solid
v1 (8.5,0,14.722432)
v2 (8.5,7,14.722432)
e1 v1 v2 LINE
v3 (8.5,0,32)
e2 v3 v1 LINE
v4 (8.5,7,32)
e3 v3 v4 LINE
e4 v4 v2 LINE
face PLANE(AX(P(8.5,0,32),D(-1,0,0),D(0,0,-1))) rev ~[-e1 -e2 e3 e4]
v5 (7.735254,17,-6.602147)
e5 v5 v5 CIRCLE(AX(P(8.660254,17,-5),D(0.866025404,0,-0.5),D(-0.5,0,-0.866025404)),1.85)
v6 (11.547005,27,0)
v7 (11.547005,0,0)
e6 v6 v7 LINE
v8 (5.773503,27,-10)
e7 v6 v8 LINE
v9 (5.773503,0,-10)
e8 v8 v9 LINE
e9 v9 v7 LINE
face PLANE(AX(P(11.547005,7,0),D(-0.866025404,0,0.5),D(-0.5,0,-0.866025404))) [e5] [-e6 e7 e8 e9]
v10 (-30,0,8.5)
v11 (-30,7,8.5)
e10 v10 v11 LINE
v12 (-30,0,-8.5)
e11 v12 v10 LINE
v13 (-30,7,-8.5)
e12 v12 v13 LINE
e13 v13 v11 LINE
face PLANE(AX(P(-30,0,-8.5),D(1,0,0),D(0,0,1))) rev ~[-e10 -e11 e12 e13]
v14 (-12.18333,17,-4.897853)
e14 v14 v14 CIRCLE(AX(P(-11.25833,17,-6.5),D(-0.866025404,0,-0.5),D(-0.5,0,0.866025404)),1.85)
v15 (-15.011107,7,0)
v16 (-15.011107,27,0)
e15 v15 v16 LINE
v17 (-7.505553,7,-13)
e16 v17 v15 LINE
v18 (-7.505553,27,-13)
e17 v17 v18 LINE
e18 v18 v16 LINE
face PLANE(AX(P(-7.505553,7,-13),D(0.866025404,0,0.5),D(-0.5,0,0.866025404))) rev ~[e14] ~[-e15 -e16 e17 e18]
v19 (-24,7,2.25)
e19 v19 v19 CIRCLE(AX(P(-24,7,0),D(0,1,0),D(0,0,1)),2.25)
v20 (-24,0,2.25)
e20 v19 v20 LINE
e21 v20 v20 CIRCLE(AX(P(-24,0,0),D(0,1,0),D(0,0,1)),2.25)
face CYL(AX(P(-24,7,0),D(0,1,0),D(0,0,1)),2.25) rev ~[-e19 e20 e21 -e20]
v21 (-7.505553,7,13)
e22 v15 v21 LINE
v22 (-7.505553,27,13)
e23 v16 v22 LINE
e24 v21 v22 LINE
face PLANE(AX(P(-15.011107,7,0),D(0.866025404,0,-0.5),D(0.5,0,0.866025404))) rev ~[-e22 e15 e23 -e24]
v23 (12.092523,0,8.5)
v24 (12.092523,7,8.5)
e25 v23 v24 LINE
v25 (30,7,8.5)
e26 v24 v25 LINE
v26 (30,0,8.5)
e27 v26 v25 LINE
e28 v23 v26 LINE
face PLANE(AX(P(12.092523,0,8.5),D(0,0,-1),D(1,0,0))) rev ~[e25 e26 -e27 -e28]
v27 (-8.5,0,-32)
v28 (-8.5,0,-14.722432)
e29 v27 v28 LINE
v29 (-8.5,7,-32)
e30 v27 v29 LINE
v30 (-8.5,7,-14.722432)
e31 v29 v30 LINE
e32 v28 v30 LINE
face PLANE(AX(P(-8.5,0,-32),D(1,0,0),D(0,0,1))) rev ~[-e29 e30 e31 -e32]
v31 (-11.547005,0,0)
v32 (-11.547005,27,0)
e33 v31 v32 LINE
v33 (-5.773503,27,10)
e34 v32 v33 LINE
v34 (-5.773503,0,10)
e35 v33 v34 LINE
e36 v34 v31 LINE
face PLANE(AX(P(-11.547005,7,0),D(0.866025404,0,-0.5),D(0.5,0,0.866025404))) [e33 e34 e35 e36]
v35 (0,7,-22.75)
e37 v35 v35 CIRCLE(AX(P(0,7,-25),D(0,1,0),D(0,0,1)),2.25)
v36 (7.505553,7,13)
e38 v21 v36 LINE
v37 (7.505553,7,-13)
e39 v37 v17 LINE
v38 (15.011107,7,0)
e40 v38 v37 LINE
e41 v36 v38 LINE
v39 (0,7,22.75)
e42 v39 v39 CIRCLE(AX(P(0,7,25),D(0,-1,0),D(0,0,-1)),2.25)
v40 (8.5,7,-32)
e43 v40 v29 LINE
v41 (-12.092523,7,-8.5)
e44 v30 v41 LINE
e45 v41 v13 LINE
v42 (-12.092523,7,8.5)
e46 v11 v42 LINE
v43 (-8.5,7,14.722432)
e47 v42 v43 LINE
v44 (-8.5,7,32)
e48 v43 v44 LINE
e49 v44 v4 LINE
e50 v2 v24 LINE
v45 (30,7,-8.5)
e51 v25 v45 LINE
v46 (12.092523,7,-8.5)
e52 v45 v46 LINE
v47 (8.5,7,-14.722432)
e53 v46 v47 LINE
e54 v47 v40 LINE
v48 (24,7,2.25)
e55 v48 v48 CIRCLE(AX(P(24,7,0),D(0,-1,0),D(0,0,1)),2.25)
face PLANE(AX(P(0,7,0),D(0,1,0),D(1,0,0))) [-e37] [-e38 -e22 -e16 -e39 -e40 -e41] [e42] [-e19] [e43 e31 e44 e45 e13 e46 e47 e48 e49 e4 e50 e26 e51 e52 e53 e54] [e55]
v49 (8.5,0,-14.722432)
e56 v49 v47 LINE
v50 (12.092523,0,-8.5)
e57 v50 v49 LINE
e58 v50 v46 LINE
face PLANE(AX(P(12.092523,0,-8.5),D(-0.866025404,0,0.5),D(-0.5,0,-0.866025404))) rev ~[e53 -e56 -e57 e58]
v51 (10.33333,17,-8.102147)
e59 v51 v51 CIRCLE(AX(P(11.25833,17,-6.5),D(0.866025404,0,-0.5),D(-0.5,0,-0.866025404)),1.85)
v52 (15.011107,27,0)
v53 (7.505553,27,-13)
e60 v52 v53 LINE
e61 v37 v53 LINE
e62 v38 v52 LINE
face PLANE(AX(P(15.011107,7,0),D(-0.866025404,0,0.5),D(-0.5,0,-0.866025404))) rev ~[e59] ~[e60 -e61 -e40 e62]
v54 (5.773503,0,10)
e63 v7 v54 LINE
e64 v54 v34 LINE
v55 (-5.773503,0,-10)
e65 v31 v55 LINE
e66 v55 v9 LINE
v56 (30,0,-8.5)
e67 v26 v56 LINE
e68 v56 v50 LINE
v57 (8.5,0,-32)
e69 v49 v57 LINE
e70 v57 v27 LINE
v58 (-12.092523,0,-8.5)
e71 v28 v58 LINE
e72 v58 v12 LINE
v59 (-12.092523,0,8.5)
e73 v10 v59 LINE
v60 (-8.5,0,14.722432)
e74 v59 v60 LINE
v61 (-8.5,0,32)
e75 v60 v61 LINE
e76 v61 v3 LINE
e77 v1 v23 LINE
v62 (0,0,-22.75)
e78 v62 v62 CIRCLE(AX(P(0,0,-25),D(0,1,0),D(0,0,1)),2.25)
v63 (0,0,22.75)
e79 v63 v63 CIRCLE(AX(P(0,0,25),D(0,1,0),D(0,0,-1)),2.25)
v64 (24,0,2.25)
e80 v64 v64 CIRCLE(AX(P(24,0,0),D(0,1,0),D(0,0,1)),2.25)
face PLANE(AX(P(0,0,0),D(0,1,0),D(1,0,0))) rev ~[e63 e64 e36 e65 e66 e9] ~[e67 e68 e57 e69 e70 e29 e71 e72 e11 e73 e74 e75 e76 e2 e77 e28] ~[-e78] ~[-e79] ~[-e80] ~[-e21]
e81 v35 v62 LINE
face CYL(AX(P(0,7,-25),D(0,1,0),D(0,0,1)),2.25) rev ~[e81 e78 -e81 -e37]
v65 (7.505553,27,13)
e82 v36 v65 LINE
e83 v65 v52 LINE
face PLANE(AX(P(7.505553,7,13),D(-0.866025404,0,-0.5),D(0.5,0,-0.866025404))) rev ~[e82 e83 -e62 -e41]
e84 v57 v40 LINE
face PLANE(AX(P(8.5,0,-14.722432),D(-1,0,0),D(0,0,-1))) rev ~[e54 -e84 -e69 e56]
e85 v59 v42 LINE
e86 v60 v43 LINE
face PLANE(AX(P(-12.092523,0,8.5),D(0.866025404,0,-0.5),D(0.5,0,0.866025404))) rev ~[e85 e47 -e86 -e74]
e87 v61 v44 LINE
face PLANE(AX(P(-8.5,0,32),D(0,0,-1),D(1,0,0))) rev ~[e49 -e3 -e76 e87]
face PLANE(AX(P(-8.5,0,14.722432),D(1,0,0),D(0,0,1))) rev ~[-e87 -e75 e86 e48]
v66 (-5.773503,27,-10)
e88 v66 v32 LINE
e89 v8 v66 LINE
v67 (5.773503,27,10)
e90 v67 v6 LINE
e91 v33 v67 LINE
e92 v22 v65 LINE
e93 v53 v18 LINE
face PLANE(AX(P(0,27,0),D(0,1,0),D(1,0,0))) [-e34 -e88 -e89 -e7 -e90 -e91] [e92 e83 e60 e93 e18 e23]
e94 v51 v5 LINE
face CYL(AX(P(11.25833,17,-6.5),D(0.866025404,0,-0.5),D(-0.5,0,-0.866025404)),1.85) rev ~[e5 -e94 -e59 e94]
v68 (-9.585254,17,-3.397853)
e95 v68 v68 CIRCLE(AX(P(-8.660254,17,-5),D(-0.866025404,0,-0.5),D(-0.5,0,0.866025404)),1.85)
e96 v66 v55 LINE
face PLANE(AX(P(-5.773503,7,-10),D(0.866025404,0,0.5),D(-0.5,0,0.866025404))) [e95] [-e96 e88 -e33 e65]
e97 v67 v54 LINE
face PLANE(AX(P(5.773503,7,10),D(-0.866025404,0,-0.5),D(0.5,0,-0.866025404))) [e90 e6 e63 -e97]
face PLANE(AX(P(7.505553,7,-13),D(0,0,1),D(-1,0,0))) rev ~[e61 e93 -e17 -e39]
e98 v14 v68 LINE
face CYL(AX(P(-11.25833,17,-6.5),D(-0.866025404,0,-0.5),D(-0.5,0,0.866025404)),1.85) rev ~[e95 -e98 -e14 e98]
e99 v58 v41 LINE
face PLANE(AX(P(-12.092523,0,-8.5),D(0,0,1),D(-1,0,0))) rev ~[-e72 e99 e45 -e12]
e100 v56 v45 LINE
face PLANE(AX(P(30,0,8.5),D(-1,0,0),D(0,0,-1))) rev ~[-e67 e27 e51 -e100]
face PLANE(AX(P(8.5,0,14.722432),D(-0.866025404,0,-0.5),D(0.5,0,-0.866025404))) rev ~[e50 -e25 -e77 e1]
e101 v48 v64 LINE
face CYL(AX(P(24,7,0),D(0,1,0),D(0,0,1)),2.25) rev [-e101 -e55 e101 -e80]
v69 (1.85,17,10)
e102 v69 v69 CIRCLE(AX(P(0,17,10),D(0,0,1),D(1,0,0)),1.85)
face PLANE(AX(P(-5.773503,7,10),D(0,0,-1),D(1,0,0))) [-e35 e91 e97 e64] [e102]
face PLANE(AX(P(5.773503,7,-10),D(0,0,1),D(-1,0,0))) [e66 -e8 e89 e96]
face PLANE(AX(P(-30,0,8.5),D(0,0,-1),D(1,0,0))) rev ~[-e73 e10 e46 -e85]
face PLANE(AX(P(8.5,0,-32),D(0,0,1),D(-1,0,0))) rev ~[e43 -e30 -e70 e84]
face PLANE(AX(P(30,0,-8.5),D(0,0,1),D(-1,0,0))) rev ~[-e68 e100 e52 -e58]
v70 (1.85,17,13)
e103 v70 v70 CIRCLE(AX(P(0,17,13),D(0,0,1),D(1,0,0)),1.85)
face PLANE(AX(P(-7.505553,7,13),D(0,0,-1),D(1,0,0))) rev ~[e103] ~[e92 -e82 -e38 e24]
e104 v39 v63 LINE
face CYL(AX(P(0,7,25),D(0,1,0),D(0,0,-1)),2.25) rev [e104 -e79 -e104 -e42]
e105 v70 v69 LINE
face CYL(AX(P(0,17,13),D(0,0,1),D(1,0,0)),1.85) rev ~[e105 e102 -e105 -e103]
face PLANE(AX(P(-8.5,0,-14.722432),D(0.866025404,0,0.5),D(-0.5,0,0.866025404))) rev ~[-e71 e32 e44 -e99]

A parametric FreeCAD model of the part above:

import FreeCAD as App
import Part
import Sketcher

V = App.Vector
Q = App.Units.Quantity


def add_polygon(sketch, points):
    """Adds a closed chain of lines whose ends are joined by coincident constraints."""
    first, n = sketch.GeometryCount, len(points)
    for a, b in zip(points, points[1:] + points[:1]):
        sketch.addGeometry(Part.LineSegment(App.Vector(*a, 0), App.Vector(*b, 0)), False)
    for i in range(n):
        sketch.addConstraint(Sketcher.Constraint("Coincident", first + i, 2, first + (i + 1) % n, 1))

doc = App.newDocument("Part")
body = doc.addObject("PartDesign::Body", "Body")

sketch1 = doc.addObject("Sketcher::SketchObject", "Sketch")
body.addObject(sketch1)
sketch1.AttachmentSupport = (doc.XZ_Plane, [""])
sketch1.MapMode = "FlatFace"
add_polygon(sketch1, [(12, 8), (30, 8), (30, -8), (12, -8), (8, -15), (8, -32), (-8, -32), (-8, -15), (-12, -8), (-30, -8), (-30, 8), (-12, 8), (-8, 15), (-8, 32), (8, 32), (8, 15)])
add_polygon(sketch1, [(-6, 10), (-12, 0), (-6, -10), (6, -10), (12, 0), (6, 10)])
sketch1.addConstraint([
    Sketcher.Constraint("Horizontal", 0),
    Sketcher.Constraint("Vertical", 1),
    Sketcher.Constraint("Horizontal", 2),
    Sketcher.Constraint("Vertical", 4),
    Sketcher.Constraint("Horizontal", 5),
    Sketcher.Constraint("Vertical", 6),
    Sketcher.Constraint("Horizontal", 8),
    Sketcher.Constraint("Vertical", 9),
    Sketcher.Constraint("Horizontal", 10),
    Sketcher.Constraint("Vertical", 12),
    Sketcher.Constraint("Horizontal", 13),
    Sketcher.Constraint("Vertical", 14),
    Sketcher.Constraint("Horizontal", 18),
    Sketcher.Constraint("Horizontal", 21),
    Sketcher.Constraint("Symmetric", 0, 2, 8, 2, -1, 1),
    Sketcher.Constraint("Symmetric", 2, 2, 10, 2, -1, 1),
    Sketcher.Constraint("Symmetric", 3, 2, 11, 2, -1, 1),
    Sketcher.Constraint("Symmetric", 5, 2, 13, 2, -1, 1),
    Sketcher.Constraint("Symmetric", 16, 2, 19, 2, -1, 1),
    Sketcher.Constraint("Symmetric", 17, 2, 20, 2, -1, 1),
    Sketcher.Constraint("Symmetric", 3, 2, 6, 2, -2),
    Sketcher.Constraint("Symmetric", 2, 2, 7, 2, -2),
    Sketcher.Constraint("PointOnObject", 16, 2, -1),
    Sketcher.Constraint("Parallel", 7, 15),
    Sketcher.Constraint("Parallel", 11, 16),
    Sketcher.Constraint("Parallel", 15, 17),
    Sketcher.Constraint("Parallel", 16, 19),
    Sketcher.Constraint("Horizontal", 11, 2, 14, 2),
    Sketcher.Constraint("Equal", 13, 1),
    Sketcher.Constraint("DistanceX", 5, 2, 5, 1, 17.0),
    Sketcher.Constraint("Angle", 3, Q("-120 deg")),
    Sketcher.Constraint("DistanceX", -1, 1, 0, 2, 30.0),
    Sketcher.Constraint("DistanceY", 4, 2, -1, 1, 32.0),
    Sketcher.Constraint("DistanceY", 17, 2, -1, 1, 10.0),
    Sketcher.Constraint("DistanceY", 4, 2, 4, 1, 17.277568),
    Sketcher.Constraint("DistanceX", 18, 1, 18, 2, 11.547005),
])
pad1 = doc.addObject("PartDesign::Pad", "Pad")
body.addObject(pad1)
pad1.Profile = sketch1
pad1.Length = 7
pad1.Reversed = True

sketch2 = doc.addObject("Sketcher::SketchObject", "Sketch001")
body.addObject(sketch2)
sketch2.AttachmentSupport = (doc.XZ_Plane, [""])
sketch2.MapMode = "FlatFace"
sketch2.AttachmentOffset = App.Placement(V(0, 0, -7), App.Rotation())
add_polygon(sketch2, [(-15, 0), (-8, 13), (8, 13), (15, 0), (8, -13), (-8, -13)])
add_polygon(sketch2, [(-6, 10), (-12, 0), (-6, -10), (6, -10), (12, 0), (6, 10)])
sketch2.addConstraint([
    Sketcher.Constraint("Horizontal", 1),
    Sketcher.Constraint("Horizontal", 4),
    Sketcher.Constraint("Horizontal", 8),
    Sketcher.Constraint("Horizontal", 11),
    Sketcher.Constraint("Symmetric", 0, 2, 3, 2, -1, 1),
    Sketcher.Constraint("Symmetric", 2, 2, 5, 2, -1, 1),
    Sketcher.Constraint("Symmetric", 6, 2, 9, 2, -1, 1),
    Sketcher.Constraint("Symmetric", 7, 2, 10, 2, -1, 1),
    Sketcher.Constraint("PointOnObject", 2, 2, -1),
    Sketcher.Constraint("PointOnObject", 6, 2, -1),
    Sketcher.Constraint("Parallel", 2, 5),
    Sketcher.Constraint("Parallel", 3, 6),
    Sketcher.Constraint("Parallel", 5, 7),
    Sketcher.Constraint("Parallel", 6, 9),
    Sketcher.Constraint("Vertical", 1, 2, 3, 2),
    Sketcher.Constraint("Angle", 0, Q("60 deg")),
    Sketcher.Constraint("DistanceY", -1, 1, 0, 2, 13.0),
    Sketcher.Constraint("DistanceY", 7, 2, -1, 1, 10.0),
    Sketcher.Constraint("DistanceX", 5, 2, 6, 2, 3.464102),
    Sketcher.Constraint("DistanceX", 1, 1, 1, 2, 15.011107),
])
pad2 = doc.addObject("PartDesign::Pad", "Pad001")
body.addObject(pad2)
pad2.Profile = sketch2
pad2.Length = 20
pad2.Reversed = True

sketch3 = doc.addObject("Sketcher::SketchObject", "Sketch002")
body.addObject(sketch3)
sketch3.AttachmentSupport = (doc.XZ_Plane, [""])
sketch3.MapMode = "FlatFace"
sketch3.AttachmentOffset = App.Placement(V(0, 0, -7), App.Rotation())
sketch3.addGeometry(Part.Circle(V(0, -25, 0), V(0, 0, 1), 2.2), False)
sketch3.addConstraint([
    Sketcher.Constraint("PointOnObject", 0, 3, -2),
    Sketcher.Constraint("Diameter", 0, 4.5),
    Sketcher.Constraint("DistanceY", 0, 3, -1, 1, 25.0),
])
pocket1 = doc.addObject("PartDesign::Pocket", "Pocket")
body.addObject(pocket1)
pocket1.Profile = sketch3
pocket1.Type = "ThroughAll"
pocket1.Reversed = True
doc.recompute()

mirrored = doc.addObject("PartDesign::Mirrored", "Mirrored")
body.addObject(mirrored)
mirrored.Originals = [pocket1]
mirrored.MirrorPlane = (doc.XY_Plane, [""])
body.Tip = mirrored

sketch4 = doc.addObject("Sketcher::SketchObject", "Sketch003")
body.addObject(sketch4)
sketch4.AttachmentSupport = (doc.XZ_Plane, [""])
sketch4.MapMode = "FlatFace"
sketch4.AttachmentOffset = App.Placement(V(0, 0, -7), App.Rotation())
sketch4.addGeometry(Part.Circle(V(-24, 0, 0), V(0, 0, 1), 2.2), False)
sketch4.addConstraint([
    Sketcher.Constraint("PointOnObject", 0, 3, -1),
    Sketcher.Constraint("Diameter", 0, 4.5),
    Sketcher.Constraint("DistanceX", 0, 3, -1, 1, 24.0),
])
pocket2 = doc.addObject("PartDesign::Pocket", "Pocket001")
body.addObject(pocket2)
pocket2.Profile = sketch4
pocket2.Type = "ThroughAll"
pocket2.Reversed = True
doc.recompute()

mirrored2 = doc.addObject("PartDesign::Mirrored", "Mirrored001")
body.addObject(mirrored2)
mirrored2.Originals = [pocket2]
mirrored2.MirrorPlane = (doc.YZ_Plane, [""])
body.Tip = mirrored2

sketch5 = doc.addObject("Sketcher::SketchObject", "Sketch004")
body.addObject(sketch5)
sketch5.AttachmentSupport = (doc.XY_Plane, [""])
sketch5.MapMode = "FlatFace"
sketch5.AttachmentOffset = App.Placement(V(0, 0, 13), App.Rotation())
sketch5.addGeometry(Part.Circle(V(0, 17, 0), V(0, 0, 1), 1.9), False)
sketch5.addConstraint([
    Sketcher.Constraint("PointOnObject", 0, 3, -2),
    Sketcher.Constraint("Diameter", 0, 3.7),
    Sketcher.Constraint("DistanceY", -1, 1, 0, 3, 17.0),
])
pocket3 = doc.addObject("PartDesign::Pocket", "Pocket002")
body.addObject(pocket3)
pocket3.Profile = sketch5
pocket3.Length = 3

sketch6 = doc.addObject("Sketcher::SketchObject", "Sketch005")
body.addObject(sketch6)
sketch6.Placement = App.Placement(V(11.25833, 0, -6.5), App.Rotation(V(-0.5, 0, -0.866025404), V(0, 1, 0), V(0.866025404, 0, -0.5), "ZXY"))
sketch6.addGeometry(Part.Circle(V(0, 17, 0), V(0, 0, 1), 1.9), False)
sketch6.addConstraint([
    Sketcher.Constraint("PointOnObject", 0, 3, -2),
    Sketcher.Constraint("Diameter", 0, 3.7),
    Sketcher.Constraint("DistanceY", -1, 1, 0, 3, 17.0),
])
pocket4 = doc.addObject("PartDesign::Pocket", "Pocket003")
body.addObject(pocket4)
pocket4.Profile = sketch6
pocket4.Length = 3

sketch7 = doc.addObject("Sketcher::SketchObject", "Sketch006")
body.addObject(sketch7)
sketch7.Placement = App.Placement(V(-11.25833, 0, -6.5), App.Rotation(V(-0.5, 0, 0.866025404), V(0, 1, 0), V(-0.866025404, 0, -0.5), "ZXY"))
sketch7.addGeometry(Part.Circle(V(0, 17, 0), V(0, 0, 1), 1.9), False)
sketch7.addConstraint([
    Sketcher.Constraint("PointOnObject", 0, 3, -2),
    Sketcher.Constraint("Diameter", 0, 3.7),
    Sketcher.Constraint("DistanceY", -1, 1, 0, 3, 17.0),
])
pocket5 = doc.addObject("PartDesign::Pocket", "Pocket004")
body.addObject(pocket5)
pocket5.Profile = sketch7
pocket5.Length = 3

doc.recompute()
